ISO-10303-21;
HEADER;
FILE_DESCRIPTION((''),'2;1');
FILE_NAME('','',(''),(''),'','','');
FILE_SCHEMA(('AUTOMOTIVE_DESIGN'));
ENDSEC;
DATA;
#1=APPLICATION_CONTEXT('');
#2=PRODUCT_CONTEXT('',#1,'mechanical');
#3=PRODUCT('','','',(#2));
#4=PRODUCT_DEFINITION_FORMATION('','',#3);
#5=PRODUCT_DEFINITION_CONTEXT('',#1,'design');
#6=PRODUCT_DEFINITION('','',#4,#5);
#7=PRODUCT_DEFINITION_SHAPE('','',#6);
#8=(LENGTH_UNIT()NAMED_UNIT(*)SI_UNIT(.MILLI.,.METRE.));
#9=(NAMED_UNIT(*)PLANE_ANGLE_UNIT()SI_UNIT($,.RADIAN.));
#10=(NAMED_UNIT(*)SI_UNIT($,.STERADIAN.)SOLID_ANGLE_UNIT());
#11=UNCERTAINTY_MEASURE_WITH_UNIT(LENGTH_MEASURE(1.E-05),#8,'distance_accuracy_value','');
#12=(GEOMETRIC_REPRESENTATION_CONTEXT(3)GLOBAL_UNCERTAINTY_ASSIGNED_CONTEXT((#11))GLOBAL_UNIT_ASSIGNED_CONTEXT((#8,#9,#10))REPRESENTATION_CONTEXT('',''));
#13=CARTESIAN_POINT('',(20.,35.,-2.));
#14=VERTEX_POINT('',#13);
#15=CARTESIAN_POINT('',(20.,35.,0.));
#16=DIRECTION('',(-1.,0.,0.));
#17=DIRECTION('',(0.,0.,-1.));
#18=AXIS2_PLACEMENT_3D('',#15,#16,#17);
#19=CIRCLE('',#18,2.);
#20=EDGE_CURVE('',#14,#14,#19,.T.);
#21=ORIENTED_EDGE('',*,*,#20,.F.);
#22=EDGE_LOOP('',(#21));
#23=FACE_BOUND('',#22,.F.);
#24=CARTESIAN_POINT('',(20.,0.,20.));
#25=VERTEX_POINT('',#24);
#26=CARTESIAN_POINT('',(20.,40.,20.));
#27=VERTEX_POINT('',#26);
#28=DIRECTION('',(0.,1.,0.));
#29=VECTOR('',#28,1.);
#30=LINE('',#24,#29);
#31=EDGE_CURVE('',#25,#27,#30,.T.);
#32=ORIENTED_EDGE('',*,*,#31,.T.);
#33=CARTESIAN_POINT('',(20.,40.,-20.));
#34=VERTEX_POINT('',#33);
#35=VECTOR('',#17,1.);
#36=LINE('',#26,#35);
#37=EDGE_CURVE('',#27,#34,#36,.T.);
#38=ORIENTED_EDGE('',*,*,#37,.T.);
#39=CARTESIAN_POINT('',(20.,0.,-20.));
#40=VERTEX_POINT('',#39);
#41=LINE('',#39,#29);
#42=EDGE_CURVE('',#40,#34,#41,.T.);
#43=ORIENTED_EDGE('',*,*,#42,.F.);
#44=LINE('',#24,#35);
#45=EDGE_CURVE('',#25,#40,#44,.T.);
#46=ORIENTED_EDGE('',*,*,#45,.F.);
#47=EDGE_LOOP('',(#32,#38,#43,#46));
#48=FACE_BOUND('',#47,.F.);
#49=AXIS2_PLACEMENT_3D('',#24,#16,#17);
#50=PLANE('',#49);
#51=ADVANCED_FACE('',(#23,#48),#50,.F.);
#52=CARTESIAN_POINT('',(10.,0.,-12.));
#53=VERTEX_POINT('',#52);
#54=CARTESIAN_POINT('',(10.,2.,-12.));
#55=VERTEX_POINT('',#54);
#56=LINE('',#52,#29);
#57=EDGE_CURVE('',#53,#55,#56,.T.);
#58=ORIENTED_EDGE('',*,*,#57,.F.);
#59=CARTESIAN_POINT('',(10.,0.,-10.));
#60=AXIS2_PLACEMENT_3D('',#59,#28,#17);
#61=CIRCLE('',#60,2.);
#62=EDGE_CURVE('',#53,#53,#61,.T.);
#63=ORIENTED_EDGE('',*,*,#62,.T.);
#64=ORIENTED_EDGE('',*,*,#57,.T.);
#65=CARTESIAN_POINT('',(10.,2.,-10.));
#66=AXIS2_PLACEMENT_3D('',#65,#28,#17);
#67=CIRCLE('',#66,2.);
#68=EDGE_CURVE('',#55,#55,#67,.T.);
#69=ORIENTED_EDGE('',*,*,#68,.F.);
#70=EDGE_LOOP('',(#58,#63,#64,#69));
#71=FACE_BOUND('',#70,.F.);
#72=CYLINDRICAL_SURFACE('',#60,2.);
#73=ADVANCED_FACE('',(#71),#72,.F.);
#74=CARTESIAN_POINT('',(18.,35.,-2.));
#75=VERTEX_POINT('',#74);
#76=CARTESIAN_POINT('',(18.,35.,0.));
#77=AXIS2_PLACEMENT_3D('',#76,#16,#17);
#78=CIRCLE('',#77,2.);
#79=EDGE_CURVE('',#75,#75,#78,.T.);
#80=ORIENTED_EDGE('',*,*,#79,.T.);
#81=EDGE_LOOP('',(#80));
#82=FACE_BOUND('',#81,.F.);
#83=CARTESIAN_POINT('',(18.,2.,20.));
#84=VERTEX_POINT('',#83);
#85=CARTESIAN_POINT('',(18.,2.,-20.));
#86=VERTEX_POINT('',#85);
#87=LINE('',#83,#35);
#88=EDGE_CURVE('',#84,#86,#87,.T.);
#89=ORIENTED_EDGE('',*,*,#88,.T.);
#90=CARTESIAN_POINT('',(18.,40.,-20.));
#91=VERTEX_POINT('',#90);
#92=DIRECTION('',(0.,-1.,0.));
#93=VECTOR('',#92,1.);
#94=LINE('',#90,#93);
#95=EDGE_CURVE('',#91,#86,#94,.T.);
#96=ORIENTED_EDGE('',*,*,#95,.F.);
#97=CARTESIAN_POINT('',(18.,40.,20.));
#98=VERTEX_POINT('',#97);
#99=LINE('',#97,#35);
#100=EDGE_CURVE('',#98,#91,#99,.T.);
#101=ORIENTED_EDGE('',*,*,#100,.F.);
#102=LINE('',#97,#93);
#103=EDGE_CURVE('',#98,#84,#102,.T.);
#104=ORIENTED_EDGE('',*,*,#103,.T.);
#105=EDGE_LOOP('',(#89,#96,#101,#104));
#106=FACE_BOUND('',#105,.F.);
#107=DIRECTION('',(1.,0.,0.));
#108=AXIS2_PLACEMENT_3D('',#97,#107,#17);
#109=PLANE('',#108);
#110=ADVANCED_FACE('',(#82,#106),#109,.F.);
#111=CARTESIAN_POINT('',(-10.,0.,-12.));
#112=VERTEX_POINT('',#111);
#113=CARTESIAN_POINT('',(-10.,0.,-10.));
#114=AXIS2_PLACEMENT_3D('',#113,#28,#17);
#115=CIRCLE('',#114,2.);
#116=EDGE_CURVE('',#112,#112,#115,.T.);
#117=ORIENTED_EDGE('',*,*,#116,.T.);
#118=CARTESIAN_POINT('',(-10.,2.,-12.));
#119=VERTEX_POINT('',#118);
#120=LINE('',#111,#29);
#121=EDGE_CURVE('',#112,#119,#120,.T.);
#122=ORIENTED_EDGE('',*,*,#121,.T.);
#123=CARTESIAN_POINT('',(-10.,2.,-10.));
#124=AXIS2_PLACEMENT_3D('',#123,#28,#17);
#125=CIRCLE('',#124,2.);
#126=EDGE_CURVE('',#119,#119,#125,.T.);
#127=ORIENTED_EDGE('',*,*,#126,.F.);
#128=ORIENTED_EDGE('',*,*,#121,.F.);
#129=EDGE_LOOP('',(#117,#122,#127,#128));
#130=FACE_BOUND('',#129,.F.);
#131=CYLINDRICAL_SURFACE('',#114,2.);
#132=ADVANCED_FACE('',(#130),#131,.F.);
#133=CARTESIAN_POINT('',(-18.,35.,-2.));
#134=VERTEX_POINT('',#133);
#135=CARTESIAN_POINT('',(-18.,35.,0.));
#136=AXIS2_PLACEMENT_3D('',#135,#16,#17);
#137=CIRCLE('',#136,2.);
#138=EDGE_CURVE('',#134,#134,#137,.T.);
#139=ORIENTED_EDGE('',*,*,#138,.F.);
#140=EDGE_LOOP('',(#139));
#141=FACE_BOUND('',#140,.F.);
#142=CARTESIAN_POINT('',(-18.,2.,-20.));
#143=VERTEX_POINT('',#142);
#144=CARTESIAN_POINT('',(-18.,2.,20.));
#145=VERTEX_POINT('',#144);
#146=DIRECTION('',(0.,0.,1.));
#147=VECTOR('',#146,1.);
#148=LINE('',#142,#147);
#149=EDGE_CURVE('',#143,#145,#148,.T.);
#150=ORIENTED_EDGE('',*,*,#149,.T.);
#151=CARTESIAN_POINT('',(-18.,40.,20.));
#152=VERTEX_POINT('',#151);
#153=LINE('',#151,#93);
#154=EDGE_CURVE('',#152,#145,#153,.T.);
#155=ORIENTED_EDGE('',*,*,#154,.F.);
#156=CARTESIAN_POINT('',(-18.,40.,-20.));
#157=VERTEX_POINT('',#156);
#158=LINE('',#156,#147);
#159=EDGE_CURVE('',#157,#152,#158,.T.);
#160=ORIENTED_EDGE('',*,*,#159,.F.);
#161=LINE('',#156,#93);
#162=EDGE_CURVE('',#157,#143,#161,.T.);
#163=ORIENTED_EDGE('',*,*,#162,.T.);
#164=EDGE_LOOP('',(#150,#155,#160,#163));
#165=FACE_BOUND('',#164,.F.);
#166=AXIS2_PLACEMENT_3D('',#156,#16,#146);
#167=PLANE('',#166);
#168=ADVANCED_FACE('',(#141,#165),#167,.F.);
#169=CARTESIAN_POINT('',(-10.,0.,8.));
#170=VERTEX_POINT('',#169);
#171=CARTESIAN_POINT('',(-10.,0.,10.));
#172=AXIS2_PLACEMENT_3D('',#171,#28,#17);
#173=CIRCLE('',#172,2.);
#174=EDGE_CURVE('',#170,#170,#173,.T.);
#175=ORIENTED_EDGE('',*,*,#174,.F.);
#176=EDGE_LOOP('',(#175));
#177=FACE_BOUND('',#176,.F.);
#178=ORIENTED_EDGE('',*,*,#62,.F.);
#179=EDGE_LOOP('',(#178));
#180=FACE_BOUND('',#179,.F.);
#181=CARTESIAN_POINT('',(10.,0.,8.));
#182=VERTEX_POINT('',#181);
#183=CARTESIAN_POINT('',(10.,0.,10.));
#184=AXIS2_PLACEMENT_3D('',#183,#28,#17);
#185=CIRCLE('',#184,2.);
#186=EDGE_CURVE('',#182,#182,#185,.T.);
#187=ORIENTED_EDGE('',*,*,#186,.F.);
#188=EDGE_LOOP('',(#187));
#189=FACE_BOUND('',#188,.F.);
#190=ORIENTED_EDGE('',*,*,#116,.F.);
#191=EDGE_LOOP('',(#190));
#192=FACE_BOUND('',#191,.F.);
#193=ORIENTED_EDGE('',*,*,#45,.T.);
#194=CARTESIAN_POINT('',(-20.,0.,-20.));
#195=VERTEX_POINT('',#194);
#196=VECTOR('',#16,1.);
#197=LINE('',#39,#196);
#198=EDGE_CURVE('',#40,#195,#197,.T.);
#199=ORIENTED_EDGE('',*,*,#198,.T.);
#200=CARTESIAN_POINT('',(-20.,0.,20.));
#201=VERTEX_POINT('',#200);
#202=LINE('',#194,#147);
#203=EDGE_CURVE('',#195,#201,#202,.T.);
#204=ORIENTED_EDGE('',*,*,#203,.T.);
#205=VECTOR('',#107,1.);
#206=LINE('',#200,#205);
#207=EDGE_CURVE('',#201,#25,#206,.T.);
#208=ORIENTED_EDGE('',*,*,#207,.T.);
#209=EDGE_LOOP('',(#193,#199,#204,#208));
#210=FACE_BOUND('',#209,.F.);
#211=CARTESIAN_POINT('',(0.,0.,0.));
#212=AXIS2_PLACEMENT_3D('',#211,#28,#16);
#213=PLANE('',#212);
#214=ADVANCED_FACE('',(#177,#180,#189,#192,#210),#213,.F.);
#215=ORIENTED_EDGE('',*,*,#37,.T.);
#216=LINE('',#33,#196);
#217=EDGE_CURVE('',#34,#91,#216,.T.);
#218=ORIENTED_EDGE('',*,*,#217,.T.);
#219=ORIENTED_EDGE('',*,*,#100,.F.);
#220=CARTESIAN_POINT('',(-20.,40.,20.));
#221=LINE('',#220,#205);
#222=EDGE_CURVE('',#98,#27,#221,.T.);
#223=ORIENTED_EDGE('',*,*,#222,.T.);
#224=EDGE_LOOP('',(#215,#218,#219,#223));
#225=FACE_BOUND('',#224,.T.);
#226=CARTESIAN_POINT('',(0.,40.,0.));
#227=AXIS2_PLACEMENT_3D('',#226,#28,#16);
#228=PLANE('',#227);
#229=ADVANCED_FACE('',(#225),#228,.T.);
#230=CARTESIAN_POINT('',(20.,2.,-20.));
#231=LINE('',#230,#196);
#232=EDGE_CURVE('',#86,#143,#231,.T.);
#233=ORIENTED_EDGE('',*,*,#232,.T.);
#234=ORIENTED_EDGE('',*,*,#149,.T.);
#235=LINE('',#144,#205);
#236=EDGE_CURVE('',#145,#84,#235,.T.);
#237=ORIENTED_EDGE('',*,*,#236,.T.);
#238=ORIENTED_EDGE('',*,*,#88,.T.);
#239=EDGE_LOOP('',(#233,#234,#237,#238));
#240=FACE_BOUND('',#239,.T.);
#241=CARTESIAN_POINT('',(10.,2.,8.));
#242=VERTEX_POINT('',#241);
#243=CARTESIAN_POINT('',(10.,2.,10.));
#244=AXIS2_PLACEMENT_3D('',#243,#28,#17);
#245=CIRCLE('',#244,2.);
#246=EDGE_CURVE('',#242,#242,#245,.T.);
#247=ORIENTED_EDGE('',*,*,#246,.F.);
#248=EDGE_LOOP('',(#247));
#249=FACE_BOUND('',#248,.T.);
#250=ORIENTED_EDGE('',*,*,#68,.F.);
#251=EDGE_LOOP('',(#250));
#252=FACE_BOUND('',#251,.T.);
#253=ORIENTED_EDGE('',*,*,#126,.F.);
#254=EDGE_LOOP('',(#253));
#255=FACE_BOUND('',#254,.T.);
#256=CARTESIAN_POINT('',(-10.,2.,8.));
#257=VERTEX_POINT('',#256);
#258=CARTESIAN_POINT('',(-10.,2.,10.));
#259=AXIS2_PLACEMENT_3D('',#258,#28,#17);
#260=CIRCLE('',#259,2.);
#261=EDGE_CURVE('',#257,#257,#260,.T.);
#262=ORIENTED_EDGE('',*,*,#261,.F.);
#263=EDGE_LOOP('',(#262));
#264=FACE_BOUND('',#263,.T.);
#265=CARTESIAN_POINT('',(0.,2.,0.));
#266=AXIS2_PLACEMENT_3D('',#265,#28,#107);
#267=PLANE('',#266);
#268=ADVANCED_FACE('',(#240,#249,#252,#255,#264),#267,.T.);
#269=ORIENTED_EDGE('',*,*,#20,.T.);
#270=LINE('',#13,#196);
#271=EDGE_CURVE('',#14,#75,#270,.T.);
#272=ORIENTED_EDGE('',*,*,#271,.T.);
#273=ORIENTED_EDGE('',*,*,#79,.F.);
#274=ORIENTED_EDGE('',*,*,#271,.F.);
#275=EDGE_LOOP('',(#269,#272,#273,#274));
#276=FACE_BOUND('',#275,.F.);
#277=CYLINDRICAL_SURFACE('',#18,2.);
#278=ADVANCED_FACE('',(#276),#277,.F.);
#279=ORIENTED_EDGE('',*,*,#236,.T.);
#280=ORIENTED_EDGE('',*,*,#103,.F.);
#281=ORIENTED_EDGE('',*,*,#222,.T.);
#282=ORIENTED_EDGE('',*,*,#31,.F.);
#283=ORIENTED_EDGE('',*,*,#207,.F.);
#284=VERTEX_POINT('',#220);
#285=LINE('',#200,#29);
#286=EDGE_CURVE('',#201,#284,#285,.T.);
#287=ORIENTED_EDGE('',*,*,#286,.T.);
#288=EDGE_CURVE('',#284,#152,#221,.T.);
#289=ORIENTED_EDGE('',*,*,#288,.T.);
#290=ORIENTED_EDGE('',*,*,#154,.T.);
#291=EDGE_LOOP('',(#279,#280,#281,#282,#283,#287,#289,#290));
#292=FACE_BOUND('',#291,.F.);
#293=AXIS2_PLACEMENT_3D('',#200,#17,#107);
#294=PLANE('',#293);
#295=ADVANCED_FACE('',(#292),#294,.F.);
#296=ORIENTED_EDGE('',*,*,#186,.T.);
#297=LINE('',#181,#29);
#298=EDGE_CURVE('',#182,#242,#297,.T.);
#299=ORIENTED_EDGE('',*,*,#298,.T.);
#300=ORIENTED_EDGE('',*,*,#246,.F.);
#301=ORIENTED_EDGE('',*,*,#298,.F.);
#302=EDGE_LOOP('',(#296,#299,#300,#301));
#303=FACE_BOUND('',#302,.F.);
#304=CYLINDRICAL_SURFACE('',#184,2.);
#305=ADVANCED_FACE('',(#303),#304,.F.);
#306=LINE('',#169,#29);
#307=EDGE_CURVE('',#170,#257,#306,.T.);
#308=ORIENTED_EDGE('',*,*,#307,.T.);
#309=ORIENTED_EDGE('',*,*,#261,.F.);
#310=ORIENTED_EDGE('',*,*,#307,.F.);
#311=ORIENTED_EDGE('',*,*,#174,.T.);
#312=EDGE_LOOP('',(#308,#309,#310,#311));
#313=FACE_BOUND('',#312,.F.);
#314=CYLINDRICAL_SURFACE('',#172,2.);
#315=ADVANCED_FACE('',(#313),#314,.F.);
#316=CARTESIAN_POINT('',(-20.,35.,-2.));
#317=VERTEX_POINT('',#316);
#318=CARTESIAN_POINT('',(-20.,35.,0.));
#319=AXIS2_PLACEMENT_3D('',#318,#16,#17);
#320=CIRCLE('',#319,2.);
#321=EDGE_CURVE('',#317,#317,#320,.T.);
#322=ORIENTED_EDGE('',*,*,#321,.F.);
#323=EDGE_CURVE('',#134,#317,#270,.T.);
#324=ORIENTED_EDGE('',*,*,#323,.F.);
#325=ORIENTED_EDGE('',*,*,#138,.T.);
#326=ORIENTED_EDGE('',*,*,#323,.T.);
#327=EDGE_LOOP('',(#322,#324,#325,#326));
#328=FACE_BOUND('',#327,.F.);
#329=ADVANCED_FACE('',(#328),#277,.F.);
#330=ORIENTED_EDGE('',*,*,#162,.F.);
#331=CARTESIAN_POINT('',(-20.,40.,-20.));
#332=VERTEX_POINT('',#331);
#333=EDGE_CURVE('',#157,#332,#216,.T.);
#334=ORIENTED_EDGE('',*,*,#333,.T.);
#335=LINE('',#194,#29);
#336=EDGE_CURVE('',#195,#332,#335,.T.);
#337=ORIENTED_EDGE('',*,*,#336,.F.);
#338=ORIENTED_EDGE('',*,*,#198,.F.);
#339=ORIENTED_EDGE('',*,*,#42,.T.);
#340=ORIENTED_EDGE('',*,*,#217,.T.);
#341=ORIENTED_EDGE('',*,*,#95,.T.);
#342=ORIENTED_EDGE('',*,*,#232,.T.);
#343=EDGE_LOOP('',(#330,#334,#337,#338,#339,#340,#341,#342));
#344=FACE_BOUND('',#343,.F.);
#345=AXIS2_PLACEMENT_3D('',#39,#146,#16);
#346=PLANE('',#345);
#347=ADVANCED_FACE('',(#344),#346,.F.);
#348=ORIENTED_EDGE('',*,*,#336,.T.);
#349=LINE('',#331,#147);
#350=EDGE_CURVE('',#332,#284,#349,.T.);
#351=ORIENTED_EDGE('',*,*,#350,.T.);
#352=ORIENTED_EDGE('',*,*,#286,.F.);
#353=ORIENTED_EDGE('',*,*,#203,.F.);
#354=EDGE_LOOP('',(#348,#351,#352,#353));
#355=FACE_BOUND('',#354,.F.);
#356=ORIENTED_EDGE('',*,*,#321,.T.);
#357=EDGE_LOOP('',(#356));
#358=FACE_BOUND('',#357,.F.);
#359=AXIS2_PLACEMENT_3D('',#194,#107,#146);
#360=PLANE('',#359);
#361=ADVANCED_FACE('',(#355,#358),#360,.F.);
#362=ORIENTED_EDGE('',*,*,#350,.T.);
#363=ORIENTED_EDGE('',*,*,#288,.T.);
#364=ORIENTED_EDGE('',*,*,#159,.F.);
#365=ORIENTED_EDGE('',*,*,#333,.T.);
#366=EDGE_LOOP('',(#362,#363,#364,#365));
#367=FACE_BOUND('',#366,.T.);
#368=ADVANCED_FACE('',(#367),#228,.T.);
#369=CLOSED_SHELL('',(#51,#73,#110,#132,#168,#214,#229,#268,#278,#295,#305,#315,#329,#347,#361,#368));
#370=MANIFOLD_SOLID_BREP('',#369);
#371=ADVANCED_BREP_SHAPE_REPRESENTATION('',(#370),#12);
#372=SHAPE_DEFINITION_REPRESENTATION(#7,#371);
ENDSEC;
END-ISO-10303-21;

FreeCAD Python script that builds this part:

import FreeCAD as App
import Part
import Sketcher


def add_polygon(sketch, points):
    """Adds a closed chain of lines whose ends are joined by coincident constraints."""
    first, n = sketch.GeometryCount, len(points)
    for a, b in zip(points, points[1:] + points[:1]):
        sketch.addGeometry(Part.LineSegment(App.Vector(*a, 0), App.Vector(*b, 0)), False)
    for i in range(n):
        sketch.addConstraint(Sketcher.Constraint("Coincident", first + i, 2, first + (i + 1) % n, 1))

doc = App.newDocument("Part")
params = doc.addObject("Spreadsheet::Sheet", "Params")
for row, (alias, value) in enumerate([
    ("sketch1_width", "40 mm"),
    ("pad1_length", "40 mm"),
    ("sketch2_width", "36 mm"),
    ("sketch2_height", "40 mm"),
    ("pocket1_length", "38 mm"),
    ("sketch3_diameter", "4 mm"),
    ("hole_diameter", "4 mm"),
    ("sketch4_diameter", "4 mm"),
    ("hole2_diameter", "4 mm"),
], start=1):
    params.set(f"A{row}", alias)
    params.set(f"B{row}", "=" + value)
    params.setAlias(f"B{row}", alias)

body = doc.addObject("PartDesign::Body", "Body")

sketch1 = body.newObject("Sketcher::SketchObject", "Sketch")
sketch1.AttachmentSupport = (doc.getObject("XZ_Plane"), [""])
sketch1.MapMode = "FlatFace"
add_polygon(sketch1, [(-20, -20), (-20, 20), (20, 20), (20, -20)])
sketch1.addConstraint([
    Sketcher.Constraint("Vertical", 0),
    Sketcher.Constraint("Horizontal", 1),
    Sketcher.Constraint("Vertical", 2),
    Sketcher.Constraint("Horizontal", 3),
    Sketcher.Constraint("Symmetric", 0, 2, 2, 2, -1, 1),
    Sketcher.Constraint("Equal", 3, 0),
    Sketcher.Constraint("DistanceX", 1, 1, 1, 2, 40.0),
])
sketch1.setExpression("Constraints[10]", "Params.sketch1_width")
pad1 = body.newObject("PartDesign::Pad", "Pad")
pad1.Profile = sketch1
pad1.setExpression("Length", "Params.pad1_length")
pad1.Reversed = True

sketch2 = body.newObject("Sketcher::SketchObject", "Sketch001")
sketch2.AttachmentSupport = (doc.getObject("XZ_Plane"), [""])
sketch2.MapMode = "FlatFace"
sketch2.AttachmentOffset = App.Placement(App.Vector(0, 0, -40), App.Rotation())
add_polygon(sketch2, [(18, 20), (18, -20), (-18, -20), (-18, 20)])
sketch2.addConstraint([
    Sketcher.Constraint("Vertical", 0),
    Sketcher.Constraint("Horizontal", 1),
    Sketcher.Constraint("Vertical", 2),
    Sketcher.Constraint("Horizontal", 3),
    Sketcher.Constraint("Symmetric", 0, 2, 2, 2, -1, 1),
    Sketcher.Constraint("DistanceX", 1, 2, 1, 1, 36.0),
    Sketcher.Constraint("DistanceY", 0, 2, 0, 1, 40.0),
])
sketch2.setExpression("Constraints[9]", "Params.sketch2_width")
sketch2.setExpression("Constraints[10]", "Params.sketch2_height")
pocket1 = body.newObject("PartDesign::Pocket", "Pocket")
pocket1.Profile = sketch2
pocket1.setExpression("Length", "Params.pocket1_length")
pocket1.Reversed = True

sketch3 = body.newObject("Sketcher::SketchObject", "Sketch002")
sketch3.AttachmentSupport = (doc.getObject("XZ_Plane"), [""])
sketch3.MapMode = "FlatFace"
sketch3.addGeometry([
    Part.Circle(App.Vector(10, 10, 0), App.Vector(0, 0, 1), 2),
    Part.Circle(App.Vector(10, -10, 0), App.Vector(0, 0, 1), 2),
    Part.Circle(App.Vector(-10, 10, 0), App.Vector(0, 0, 1), 2),
    Part.Circle(App.Vector(-10, -10, 0), App.Vector(0, 0, 1), 2),
], False)
sketch3.addConstraint([
    Sketcher.Constraint("Equal", 0, 1),
    Sketcher.Constraint("Equal", 1, 2),
    Sketcher.Constraint("Equal", 2, 3),
    Sketcher.Constraint("Symmetric", 1, 3, 2, 3, -1, 1),
    Sketcher.Constraint("Symmetric", 0, 3, 3, 3, -1, 1),
    Sketcher.Constraint("Symmetric", 0, 3, 2, 3, -2),
    Sketcher.Constraint("Diameter", 0, 4.0),
    Sketcher.Constraint("DistanceX", -1, 1, 0, 3, 10.0),
    Sketcher.Constraint("DistanceY", -1, 1, 0, 3, 10.0),
])
sketch3.setExpression("Constraints[6]", "Params.sketch3_diameter")
doc.recompute()
hole = body.newObject("PartDesign::Hole", "Hole")
hole.Profile = sketch3
hole.ThreadType = "None"
hole.setExpression("Diameter", "Params.hole_diameter")
hole.DepthType = "ThroughAll"

sketch4 = body.newObject("Sketcher::SketchObject", "Sketch003")
sketch4.AttachmentSupport = (doc.getObject("YZ_Plane"), [""])
sketch4.MapMode = "FlatFace"
sketch4.AttachmentOffset = App.Placement(App.Vector(0, 0, 20), App.Rotation())
sketch4.addGeometry(Part.Circle(App.Vector(35, 0, 0), App.Vector(0, 0, 1), 2), False)
sketch4.addConstraint([
    Sketcher.Constraint("PointOnObject", 0, 3, -1),
    Sketcher.Constraint("Diameter", 0, 4.0),
    Sketcher.Constraint("DistanceX", -1, 1, 0, 3, 35.0),
])
sketch4.setExpression("Constraints[1]", "Params.sketch4_diameter")
doc.recompute()
hole2 = body.newObject("PartDesign::Hole", "Hole001")
hole2.Profile = sketch4
hole2.ThreadType = "None"
hole2.setExpression("Diameter", "Params.hole2_diameter")
hole2.DepthType = "ThroughAll"

doc.recompute()
